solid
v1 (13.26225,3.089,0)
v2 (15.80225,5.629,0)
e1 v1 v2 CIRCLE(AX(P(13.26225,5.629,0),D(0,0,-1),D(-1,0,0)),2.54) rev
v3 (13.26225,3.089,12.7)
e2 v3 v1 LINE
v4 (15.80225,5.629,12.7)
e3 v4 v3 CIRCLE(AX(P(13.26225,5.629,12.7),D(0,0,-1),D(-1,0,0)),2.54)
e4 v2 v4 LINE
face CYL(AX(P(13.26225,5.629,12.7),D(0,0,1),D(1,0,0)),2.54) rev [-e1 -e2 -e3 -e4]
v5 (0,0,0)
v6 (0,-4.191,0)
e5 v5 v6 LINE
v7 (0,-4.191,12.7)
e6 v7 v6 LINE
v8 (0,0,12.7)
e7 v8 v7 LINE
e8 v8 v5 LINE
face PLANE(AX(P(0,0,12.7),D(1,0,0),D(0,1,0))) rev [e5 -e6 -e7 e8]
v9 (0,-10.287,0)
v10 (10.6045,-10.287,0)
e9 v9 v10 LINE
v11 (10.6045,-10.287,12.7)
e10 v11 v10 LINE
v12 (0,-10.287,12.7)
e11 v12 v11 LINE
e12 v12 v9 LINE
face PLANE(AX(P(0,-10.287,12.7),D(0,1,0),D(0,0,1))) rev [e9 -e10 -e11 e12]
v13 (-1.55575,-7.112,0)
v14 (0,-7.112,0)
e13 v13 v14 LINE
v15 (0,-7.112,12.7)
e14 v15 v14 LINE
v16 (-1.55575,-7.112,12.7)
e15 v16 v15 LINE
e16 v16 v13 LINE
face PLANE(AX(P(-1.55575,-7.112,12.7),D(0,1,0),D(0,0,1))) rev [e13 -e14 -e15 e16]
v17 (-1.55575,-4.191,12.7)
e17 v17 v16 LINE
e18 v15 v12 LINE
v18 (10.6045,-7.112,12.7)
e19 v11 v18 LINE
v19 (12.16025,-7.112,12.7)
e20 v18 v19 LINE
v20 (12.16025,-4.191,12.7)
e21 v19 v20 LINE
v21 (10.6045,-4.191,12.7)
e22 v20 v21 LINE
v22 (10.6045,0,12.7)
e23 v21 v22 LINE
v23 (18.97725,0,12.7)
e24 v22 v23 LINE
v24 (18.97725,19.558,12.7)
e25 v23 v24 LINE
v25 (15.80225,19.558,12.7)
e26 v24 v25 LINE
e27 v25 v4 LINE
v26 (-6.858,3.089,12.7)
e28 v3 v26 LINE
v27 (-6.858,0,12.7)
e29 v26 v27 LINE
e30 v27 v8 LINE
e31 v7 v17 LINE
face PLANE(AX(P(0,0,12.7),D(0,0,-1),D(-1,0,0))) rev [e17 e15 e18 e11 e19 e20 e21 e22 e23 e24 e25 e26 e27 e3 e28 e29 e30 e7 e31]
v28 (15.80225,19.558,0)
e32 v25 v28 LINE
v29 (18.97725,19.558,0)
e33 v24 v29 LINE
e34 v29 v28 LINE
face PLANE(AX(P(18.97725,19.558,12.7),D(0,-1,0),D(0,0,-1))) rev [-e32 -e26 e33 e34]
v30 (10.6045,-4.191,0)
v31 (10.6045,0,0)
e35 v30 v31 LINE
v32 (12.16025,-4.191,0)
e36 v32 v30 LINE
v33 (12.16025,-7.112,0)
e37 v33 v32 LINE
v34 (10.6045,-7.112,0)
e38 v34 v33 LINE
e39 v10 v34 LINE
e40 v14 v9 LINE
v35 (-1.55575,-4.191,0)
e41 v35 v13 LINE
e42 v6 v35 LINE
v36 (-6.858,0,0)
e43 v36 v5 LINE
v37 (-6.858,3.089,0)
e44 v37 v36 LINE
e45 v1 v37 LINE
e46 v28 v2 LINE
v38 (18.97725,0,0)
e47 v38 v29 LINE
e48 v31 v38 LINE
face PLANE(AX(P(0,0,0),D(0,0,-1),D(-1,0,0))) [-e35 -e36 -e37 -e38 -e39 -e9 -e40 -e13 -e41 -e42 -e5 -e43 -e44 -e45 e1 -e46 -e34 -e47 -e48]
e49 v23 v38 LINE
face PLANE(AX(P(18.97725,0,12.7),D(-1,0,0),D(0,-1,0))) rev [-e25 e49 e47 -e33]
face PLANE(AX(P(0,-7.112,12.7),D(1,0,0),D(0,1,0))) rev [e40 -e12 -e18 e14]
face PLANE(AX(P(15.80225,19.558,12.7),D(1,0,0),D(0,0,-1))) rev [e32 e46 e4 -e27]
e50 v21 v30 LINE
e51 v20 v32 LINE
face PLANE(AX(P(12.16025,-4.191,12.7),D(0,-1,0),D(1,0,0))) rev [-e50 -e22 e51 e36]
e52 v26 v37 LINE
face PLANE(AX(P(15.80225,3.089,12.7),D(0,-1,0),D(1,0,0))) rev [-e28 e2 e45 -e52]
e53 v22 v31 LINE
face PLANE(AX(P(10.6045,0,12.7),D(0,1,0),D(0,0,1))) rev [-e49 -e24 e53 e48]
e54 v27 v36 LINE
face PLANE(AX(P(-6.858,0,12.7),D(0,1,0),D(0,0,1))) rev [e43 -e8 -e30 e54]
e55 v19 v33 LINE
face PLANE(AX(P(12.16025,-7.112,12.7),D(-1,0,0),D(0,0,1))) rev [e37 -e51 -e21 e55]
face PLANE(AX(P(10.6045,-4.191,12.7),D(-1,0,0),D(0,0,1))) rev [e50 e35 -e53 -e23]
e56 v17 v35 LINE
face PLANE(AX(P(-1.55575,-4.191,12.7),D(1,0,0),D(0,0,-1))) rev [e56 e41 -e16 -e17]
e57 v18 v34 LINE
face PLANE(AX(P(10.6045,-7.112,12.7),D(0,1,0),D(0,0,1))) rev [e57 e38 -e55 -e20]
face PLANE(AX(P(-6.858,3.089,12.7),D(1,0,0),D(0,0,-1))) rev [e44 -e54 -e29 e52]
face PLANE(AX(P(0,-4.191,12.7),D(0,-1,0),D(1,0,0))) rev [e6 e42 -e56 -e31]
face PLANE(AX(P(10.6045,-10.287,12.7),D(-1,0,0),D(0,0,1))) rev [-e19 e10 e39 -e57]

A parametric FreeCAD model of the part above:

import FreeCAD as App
import Part
import Sketcher
from FreeCAD import Vector
Q = App.Units.Quantity


def edges_at(feature, points):
    """Names of the edges that pass closest to the given points."""
    edges = feature.Shape.Edges
    near = lambda p: min(range(len(edges)), key=lambda i: edges[i].distToShape(Part.Vertex(*p))[0])
    return sorted({f"Edge{near(p) + 1}" for p in points})


def add_polygon(sketch, points):
    """Adds a closed chain of lines whose ends are joined by coincident constraints."""
    first, n = sketch.GeometryCount, len(points)
    for a, b in zip(points, points[1:] + points[:1]):
        sketch.addGeometry(Part.LineSegment(App.Vector(*a, 0), App.Vector(*b, 0)), False)
    for i in range(n):
        sketch.addConstraint(Sketcher.Constraint("Coincident", first + i, 2, first + (i + 1) % n, 1))

doc = App.newDocument("Part")
params = doc.addObject("Spreadsheet::Sheet", "Params")
for row, (alias, value) in enumerate([
    ("sketch1_width", "0.27 in"),
    ("sketch1_height", "0.77 in"),
    ("sketch1_width2", "0.125 in"),
    ("sketch1_height2", "0.165 in"),
    ("sketch1_height3", "0.115 in"),
    ("pad1_length", "0.5 in"),
    ("fillet_radius", "0.1 in"),
], start=1):
    params.set(f"A{row}", alias)
    params.set(f"B{row}", "=" + value)
    params.setAlias(f"B{row}", alias)

body = doc.addObject("PartDesign::Body", "Body")

sketch1 = body.newObject("Sketcher::SketchObject", "Sketch")
sketch1.AttachmentSupport = (doc.getObject("XY_Plane"), [""])
sketch1.MapMode = "FlatFace"
add_polygon(sketch1, [(0, 0), (0, -4.2), (-1.6, -4.2), (-1.6, -7.1), (0, -7.1), (0, -10.3), (10.6, -10.3), (10.6, -7.1), (12.2, -7.1), (12.2, -4.2), (10.6, -4.2), (10.6, 0), (19, 0), (19, 19.6), (15.8, 19.6), (15.8, 3.1), (-6.9, 3.1), (-6.9, 0)])
sketch1.addConstraint([
    Sketcher.Constraint("Vertical", 0),
    Sketcher.Constraint("Horizontal", 1),
    Sketcher.Constraint("Vertical", 2),
    Sketcher.Constraint("Horizontal", 3),
    Sketcher.Constraint("Vertical", 4),
    Sketcher.Constraint("Horizontal", 5),
    Sketcher.Constraint("Vertical", 6),
    Sketcher.Constraint("Horizontal", 7),
    Sketcher.Constraint("Vertical", 8),
    Sketcher.Constraint("Horizontal", 9),
    Sketcher.Constraint("Vertical", 10),
    Sketcher.Constraint("Horizontal", 11),
    Sketcher.Constraint("Vertical", 12),
    Sketcher.Constraint("Horizontal", 13),
    Sketcher.Constraint("Vertical", 14),
    Sketcher.Constraint("Horizontal", 15),
    Sketcher.Constraint("Vertical", 16),
    Sketcher.Constraint("Horizontal", 17),
    Sketcher.Constraint("Coincident", 17, 2, -1, 1),
    Sketcher.Constraint("PointOnObject", 3, 2, -2),
    Sketcher.Constraint("PointOnObject", 10, 2, -1),
    Sketcher.Constraint("Horizontal", 3, 2, 6, 2),
    Sketcher.Constraint("Horizontal", 1, 2, 8, 2),
    Sketcher.Constraint("Vertical", 6, 2, 9, 2),
    Sketcher.Constraint("Equal", 3, 7),
    Sketcher.Constraint("Equal", 13, 4),
    Sketcher.Constraint("DistanceX", 17, 1, 17, 2, Q("0.27 in")),
    Sketcher.Constraint("DistanceY", 12, 1, 12, 2, Q("0.77 in")),
    Sketcher.Constraint("DistanceX", 13, 2, 13, 1, Q("0.125 in")),
    Sketcher.Constraint("DistanceY", 0, 2, 0, 1, Q("0.165 in")),
    Sketcher.Constraint("DistanceY", 2, 2, 2, 1, Q("0.115 in")),
    Sketcher.Constraint("DistanceX", 5, 1, 5, 2, Q("0.4175 in")),
    Sketcher.Constraint("DistanceY", 14, 2, 14, 1, 16.469),
    Sketcher.Constraint("DistanceX", 1, 2, 1, 1, 1.55575),
    Sketcher.Constraint("DistanceX", 11, 1, 11, 2, 8.37275),
])
sketch1.setExpression("Constraints[44]", "Params.sketch1_width")
sketch1.setExpression("Constraints[45]", "Params.sketch1_height")
sketch1.setExpression("Constraints[46]", "Params.sketch1_width2")
sketch1.setExpression("Constraints[47]", "Params.sketch1_height2")
sketch1.setExpression("Constraints[48]", "Params.sketch1_height3")
pad1 = body.newObject("PartDesign::Pad", "Pad")
pad1.Profile = sketch1
pad1.setExpression("Length", "Params.pad1_length")
doc.recompute()

fillet = body.newObject("PartDesign::Fillet", "Fillet")
fillet.Base = (pad1, edges_at(pad1, [(15.802, 3.089, 6.35)]))
fillet.setExpression("Radius", "Params.fillet_radius")

doc.recompute()
